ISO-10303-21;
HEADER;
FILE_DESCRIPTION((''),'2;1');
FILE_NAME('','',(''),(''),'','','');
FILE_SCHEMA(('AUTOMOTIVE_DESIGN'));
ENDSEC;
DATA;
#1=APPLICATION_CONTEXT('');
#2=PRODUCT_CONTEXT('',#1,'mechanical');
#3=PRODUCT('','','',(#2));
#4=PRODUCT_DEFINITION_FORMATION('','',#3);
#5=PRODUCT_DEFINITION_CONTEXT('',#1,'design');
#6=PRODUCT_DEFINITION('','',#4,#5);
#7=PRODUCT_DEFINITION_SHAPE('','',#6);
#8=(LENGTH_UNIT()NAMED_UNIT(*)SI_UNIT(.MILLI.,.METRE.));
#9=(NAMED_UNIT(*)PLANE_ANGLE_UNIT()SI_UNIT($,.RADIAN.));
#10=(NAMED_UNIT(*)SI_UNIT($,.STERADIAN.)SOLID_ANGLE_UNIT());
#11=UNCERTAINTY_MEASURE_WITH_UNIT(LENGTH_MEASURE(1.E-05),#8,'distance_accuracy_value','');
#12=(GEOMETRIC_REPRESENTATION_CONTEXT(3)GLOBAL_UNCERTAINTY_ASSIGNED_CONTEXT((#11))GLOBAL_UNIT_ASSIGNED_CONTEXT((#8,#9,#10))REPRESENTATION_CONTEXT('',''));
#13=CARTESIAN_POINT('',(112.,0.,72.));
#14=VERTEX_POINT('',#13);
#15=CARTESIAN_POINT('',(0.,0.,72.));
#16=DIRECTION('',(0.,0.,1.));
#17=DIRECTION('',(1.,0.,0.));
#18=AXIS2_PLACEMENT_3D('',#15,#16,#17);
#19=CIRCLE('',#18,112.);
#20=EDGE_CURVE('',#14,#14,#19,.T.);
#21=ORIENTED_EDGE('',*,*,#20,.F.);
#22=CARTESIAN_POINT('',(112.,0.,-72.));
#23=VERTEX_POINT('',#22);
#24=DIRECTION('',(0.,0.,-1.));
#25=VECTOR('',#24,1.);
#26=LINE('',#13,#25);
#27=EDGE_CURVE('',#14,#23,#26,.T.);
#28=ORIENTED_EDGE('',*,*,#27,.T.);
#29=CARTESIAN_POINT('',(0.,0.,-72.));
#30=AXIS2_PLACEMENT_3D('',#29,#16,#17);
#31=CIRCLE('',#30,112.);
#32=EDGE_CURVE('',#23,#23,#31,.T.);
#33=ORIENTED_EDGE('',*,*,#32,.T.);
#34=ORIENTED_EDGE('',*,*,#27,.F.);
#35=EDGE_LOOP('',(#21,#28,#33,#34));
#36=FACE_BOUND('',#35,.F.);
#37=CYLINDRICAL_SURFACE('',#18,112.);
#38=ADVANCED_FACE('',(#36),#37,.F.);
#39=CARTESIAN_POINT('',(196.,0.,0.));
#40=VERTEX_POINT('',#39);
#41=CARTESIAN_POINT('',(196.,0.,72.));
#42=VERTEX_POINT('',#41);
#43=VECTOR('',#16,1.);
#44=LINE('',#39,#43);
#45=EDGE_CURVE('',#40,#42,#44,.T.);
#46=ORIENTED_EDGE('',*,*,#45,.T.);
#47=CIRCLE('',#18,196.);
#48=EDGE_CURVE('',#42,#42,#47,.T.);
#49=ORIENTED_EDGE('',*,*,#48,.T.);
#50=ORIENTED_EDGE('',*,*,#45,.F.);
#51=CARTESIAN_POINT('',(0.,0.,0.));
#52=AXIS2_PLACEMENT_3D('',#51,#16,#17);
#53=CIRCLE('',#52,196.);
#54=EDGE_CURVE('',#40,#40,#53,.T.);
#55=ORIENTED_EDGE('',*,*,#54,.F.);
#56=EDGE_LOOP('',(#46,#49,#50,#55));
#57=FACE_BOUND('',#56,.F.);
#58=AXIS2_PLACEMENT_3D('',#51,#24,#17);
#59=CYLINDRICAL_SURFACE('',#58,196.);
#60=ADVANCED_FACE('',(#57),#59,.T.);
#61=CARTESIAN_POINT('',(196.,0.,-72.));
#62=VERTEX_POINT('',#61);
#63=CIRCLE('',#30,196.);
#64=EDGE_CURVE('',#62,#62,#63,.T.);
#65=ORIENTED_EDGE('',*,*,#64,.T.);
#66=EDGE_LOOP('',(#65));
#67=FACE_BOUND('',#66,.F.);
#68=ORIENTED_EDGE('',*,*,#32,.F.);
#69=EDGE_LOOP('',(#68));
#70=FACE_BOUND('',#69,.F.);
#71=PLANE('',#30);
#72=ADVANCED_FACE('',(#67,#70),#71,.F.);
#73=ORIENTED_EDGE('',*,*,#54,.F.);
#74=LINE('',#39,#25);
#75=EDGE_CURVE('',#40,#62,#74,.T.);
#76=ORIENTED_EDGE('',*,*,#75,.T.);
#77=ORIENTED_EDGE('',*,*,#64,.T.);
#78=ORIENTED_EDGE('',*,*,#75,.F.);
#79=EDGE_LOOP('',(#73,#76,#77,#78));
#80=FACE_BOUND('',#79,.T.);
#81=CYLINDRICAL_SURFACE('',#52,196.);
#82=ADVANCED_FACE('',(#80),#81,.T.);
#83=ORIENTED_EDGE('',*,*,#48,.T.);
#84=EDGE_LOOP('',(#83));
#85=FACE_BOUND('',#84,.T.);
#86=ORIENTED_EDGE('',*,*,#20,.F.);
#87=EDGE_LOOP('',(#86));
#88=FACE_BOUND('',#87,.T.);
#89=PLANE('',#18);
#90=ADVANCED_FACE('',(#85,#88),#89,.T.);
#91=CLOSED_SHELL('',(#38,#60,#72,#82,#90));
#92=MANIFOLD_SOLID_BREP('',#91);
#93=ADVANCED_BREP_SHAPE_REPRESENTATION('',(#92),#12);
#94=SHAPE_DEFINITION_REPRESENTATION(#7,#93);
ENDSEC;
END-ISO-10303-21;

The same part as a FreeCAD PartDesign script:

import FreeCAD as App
import Part
import Sketcher

V = App.Vector

doc = App.newDocument("Part")
params = doc.addObject("Spreadsheet::Sheet", "Params")
for row, (alias, value) in enumerate([
    ("sketch1_diameter", "392 mm"),
    ("pad1_length", "144 mm"),
    ("sketch2_diameter", "224 mm"),
], start=1):
    params.set(f"A{row}", alias)
    params.set(f"B{row}", "=" + value)
    params.setAlias(f"B{row}", alias)

body = doc.addObject("PartDesign::Body", "Body")

# Sketch on XY plane
sketch1 = doc.addObject("Sketcher::SketchObject", "Sketch")
body.addObject(sketch1)
sketch1.AttachmentSupport = (doc.XY_Plane, [""])
sketch1.MapMode = "FlatFace"
sketch1.addGeometry(Part.Circle(V(0, 0, 0), V(0, 0, 1), 196), False)
sketch1.addConstraint(Sketcher.Constraint("Coincident", 0, 3, -1, 1))
sketch1.addConstraint(Sketcher.Constraint("Diameter", 0, 392.0))
sketch1.setExpression("Constraints[1]", "Params.sketch1_diameter")
pad1 = doc.addObject("PartDesign::Pad", "Pad")
body.addObject(pad1)
pad1.Profile = sketch1
pad1.setExpression("Length", "Params.pad1_length")
pad1.Midplane = True

# Sketch on XY plane
sketch2 = doc.addObject("Sketcher::SketchObject", "Sketch001")
body.addObject(sketch2)
sketch2.AttachmentSupport = (doc.XY_Plane, [""])
sketch2.MapMode = "FlatFace"
sketch2.AttachmentOffset = App.Placement(V(0, 0, 72), App.Rotation())
sketch2.addGeometry(Part.Circle(V(0, 0, 0), V(0, 0, 1), 112), False)
sketch2.addConstraint(Sketcher.Constraint("Coincident", 0, 3, -1, 1))
sketch2.addConstraint(Sketcher.Constraint("Diameter", 0, 224.0))
sketch2.setExpression("Constraints[1]", "Params.sketch2_diameter")
pocket1 = doc.addObject("PartDesign::Pocket", "Pocket")
body.addObject(pocket1)
pocket1.Profile = sketch2
pocket1.Type = "ThroughAll"

doc.recompute()
